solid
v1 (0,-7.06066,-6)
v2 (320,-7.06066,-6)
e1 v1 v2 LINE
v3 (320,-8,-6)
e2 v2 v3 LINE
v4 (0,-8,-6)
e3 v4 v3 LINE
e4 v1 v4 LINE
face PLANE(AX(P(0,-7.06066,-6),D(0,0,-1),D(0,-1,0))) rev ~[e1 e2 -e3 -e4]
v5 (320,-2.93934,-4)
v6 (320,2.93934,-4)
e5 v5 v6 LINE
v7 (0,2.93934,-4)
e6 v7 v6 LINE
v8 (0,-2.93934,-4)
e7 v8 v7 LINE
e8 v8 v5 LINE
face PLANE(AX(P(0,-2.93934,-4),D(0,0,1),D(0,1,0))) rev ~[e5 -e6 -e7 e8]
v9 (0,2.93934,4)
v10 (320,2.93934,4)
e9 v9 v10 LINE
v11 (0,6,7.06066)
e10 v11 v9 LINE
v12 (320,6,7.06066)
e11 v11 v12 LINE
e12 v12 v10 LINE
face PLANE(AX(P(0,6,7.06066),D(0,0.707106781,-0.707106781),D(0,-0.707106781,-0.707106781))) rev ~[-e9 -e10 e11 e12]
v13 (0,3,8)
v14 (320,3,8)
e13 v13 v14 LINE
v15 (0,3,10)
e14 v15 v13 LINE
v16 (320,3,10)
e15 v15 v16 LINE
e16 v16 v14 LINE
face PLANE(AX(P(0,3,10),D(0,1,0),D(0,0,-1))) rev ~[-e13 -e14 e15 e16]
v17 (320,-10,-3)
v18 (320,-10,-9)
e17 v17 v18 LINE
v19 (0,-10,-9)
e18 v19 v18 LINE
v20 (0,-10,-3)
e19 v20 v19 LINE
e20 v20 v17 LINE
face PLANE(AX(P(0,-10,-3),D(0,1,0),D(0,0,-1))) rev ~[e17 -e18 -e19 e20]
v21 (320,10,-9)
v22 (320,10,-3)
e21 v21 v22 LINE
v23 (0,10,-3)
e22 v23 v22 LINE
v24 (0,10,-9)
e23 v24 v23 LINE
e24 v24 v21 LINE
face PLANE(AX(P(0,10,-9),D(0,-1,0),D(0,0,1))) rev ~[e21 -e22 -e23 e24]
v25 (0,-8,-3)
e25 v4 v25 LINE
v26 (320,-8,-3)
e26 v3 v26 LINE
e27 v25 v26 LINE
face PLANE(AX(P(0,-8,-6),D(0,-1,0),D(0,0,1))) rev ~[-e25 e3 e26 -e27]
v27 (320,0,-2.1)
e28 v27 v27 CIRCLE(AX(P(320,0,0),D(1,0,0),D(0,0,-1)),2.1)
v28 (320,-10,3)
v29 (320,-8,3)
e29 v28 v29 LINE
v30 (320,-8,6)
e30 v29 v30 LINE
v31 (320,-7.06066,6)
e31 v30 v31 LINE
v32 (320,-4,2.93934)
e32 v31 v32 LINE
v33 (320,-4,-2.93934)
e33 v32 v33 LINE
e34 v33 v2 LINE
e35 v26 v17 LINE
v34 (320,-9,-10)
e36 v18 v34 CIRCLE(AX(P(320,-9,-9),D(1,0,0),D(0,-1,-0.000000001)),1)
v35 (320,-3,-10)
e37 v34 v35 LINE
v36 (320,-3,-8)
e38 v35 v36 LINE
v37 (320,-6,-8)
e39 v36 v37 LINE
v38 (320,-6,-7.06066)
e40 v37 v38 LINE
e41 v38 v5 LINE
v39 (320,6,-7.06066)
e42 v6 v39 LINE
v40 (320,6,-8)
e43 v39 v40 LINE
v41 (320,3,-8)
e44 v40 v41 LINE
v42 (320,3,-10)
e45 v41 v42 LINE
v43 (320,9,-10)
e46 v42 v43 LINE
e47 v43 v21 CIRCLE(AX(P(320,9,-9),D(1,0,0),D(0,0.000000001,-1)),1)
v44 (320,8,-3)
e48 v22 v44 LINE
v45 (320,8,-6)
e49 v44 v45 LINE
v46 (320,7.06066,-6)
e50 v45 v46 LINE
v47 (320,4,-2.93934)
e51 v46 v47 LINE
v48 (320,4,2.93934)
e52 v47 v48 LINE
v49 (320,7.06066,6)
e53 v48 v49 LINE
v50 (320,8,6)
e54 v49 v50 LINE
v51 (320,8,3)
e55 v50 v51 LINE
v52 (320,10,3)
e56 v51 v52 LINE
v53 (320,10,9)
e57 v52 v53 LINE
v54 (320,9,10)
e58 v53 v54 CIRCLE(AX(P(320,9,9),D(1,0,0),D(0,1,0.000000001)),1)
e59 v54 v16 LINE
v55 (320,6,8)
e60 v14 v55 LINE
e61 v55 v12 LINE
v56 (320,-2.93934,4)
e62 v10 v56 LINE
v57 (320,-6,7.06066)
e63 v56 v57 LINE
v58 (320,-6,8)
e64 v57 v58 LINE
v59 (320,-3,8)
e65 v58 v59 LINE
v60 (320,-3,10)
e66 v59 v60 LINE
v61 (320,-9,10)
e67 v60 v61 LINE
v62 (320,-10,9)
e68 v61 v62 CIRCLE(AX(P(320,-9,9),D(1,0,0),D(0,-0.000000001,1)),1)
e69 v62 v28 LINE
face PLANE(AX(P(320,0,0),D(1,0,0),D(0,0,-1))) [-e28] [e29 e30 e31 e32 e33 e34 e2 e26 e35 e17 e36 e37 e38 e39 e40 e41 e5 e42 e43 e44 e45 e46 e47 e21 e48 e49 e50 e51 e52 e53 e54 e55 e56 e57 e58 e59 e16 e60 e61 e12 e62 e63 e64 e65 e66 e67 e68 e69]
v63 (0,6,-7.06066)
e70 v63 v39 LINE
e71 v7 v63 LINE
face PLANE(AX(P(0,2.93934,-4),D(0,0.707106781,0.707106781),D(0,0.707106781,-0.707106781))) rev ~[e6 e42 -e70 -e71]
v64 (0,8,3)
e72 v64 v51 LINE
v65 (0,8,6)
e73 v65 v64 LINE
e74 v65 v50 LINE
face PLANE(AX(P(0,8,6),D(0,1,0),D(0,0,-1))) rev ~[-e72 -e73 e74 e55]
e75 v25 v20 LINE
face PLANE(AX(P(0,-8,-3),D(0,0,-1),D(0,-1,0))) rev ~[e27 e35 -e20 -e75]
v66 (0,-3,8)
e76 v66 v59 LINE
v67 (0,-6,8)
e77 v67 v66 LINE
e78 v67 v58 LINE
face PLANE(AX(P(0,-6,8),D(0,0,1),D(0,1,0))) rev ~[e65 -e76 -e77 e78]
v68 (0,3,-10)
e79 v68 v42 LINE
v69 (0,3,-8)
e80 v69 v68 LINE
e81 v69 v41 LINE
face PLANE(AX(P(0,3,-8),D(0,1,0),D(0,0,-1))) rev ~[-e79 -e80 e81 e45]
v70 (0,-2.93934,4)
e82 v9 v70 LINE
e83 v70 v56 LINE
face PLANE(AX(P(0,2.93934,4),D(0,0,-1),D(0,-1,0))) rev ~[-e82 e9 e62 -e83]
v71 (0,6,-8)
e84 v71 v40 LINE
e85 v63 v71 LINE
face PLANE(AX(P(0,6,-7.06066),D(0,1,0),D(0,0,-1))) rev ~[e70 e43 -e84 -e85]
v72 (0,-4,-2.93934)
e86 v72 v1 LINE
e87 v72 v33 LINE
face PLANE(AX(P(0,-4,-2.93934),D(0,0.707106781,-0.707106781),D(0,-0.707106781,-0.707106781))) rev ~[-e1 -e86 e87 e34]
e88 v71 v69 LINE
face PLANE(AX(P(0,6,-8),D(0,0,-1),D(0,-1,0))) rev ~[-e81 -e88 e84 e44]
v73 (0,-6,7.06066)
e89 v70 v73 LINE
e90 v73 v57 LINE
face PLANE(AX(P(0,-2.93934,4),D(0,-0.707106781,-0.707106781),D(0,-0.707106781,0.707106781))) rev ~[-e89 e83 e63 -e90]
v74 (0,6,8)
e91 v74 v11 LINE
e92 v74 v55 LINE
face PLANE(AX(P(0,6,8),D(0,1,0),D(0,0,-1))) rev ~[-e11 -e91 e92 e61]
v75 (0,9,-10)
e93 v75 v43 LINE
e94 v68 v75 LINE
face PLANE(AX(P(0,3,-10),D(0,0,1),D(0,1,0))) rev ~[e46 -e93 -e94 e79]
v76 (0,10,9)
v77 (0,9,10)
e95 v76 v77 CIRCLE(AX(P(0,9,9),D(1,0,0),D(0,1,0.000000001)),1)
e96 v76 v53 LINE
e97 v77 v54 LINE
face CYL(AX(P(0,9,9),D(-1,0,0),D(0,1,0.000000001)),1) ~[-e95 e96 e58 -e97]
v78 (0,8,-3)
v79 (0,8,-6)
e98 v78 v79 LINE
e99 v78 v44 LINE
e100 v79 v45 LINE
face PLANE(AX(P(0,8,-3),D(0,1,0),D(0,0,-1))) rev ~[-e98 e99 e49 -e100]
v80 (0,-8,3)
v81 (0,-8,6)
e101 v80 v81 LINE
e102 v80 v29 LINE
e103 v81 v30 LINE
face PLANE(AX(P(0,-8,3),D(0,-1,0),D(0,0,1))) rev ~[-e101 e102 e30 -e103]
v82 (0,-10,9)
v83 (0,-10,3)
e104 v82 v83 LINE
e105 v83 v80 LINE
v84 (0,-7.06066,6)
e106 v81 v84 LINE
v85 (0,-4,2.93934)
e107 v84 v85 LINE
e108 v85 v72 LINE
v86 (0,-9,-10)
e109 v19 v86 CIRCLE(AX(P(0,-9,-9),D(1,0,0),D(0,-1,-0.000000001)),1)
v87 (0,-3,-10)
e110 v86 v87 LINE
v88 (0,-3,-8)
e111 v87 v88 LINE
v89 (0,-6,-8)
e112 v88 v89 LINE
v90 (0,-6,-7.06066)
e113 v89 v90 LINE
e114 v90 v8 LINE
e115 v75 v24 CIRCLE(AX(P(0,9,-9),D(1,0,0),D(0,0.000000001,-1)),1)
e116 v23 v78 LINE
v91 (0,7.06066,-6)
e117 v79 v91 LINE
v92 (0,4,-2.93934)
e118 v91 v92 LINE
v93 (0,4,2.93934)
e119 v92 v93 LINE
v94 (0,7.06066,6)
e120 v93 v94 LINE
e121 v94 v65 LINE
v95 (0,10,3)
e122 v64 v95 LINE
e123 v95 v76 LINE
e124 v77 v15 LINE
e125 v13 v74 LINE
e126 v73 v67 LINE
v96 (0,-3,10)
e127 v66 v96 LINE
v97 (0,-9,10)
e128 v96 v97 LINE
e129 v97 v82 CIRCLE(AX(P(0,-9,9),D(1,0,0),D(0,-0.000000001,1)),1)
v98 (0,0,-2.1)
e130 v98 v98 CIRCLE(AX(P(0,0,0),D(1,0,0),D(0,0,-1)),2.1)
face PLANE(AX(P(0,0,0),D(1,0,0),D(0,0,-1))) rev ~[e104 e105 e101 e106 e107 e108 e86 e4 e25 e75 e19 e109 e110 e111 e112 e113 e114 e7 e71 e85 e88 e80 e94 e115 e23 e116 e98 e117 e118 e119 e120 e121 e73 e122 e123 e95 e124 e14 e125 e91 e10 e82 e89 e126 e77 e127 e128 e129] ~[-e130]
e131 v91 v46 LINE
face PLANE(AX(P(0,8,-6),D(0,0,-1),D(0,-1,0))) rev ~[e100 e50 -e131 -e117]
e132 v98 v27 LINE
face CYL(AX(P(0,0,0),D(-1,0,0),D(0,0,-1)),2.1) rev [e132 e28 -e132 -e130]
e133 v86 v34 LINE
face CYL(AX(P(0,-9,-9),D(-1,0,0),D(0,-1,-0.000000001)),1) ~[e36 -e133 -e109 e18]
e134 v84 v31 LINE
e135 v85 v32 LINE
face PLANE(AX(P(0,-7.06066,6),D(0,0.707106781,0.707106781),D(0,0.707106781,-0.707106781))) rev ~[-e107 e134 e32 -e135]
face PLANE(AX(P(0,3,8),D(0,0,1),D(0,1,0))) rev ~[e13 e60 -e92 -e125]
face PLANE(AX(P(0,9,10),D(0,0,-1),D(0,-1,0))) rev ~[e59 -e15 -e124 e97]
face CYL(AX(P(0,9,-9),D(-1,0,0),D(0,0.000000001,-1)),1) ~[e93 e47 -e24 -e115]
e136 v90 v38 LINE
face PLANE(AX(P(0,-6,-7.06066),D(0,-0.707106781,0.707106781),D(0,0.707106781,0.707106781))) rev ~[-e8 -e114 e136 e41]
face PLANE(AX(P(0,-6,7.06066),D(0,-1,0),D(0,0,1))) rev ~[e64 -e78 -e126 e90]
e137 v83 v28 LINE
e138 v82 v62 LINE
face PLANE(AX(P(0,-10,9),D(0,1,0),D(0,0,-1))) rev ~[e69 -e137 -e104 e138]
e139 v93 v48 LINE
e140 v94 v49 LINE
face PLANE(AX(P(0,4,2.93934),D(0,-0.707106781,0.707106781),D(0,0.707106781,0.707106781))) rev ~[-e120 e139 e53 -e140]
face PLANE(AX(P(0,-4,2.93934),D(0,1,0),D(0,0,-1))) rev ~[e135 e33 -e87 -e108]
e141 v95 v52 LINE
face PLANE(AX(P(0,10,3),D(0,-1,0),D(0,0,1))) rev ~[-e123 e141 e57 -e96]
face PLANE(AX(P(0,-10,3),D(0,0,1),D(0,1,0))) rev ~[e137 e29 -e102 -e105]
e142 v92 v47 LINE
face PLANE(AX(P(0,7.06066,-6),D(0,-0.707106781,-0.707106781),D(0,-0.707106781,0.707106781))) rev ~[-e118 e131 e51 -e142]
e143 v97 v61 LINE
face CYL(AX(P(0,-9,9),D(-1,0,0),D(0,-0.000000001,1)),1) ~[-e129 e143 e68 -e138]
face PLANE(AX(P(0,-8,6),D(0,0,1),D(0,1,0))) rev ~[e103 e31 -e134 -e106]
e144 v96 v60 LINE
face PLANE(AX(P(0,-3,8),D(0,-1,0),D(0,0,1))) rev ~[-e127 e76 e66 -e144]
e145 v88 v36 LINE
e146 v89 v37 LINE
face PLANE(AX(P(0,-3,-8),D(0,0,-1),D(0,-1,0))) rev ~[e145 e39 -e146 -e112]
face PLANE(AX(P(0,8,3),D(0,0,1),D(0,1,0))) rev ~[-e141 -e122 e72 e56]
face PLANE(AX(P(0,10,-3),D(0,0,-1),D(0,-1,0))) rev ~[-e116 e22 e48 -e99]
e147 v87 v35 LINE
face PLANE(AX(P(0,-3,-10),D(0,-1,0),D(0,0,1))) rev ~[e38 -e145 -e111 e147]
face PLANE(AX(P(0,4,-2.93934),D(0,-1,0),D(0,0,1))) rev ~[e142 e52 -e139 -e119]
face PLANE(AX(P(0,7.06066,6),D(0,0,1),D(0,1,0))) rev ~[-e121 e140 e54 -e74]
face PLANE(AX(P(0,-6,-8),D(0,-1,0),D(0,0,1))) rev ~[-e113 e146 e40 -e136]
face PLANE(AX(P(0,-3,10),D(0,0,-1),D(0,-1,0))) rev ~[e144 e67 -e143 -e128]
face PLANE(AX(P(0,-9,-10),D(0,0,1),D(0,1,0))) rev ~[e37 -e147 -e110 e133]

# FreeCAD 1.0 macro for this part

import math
import FreeCAD as App
import Part
import Sketcher
from FreeCAD import Vector

doc = App.newDocument("Part")
params = doc.addObject("Spreadsheet::Sheet", "Params")
for row, (alias, value) in enumerate([
    ("sketch1_radius", "1 mm"),
    ("sketch1_diameter", "4.2 mm"),
    ("sketch1_width", "6 mm"),
    ("sketch1_width2", "3 mm"),
    ("sketch1_width3", "2 mm"),
    ("pad1_length", "320 mm"),
], start=1):
    params.set(f"A{row}", alias)
    params.set(f"B{row}", "=" + value)
    params.setAlias(f"B{row}", alias)

body = doc.addObject("PartDesign::Body", "Body")

sketch1 = body.newObject("Sketcher::SketchObject", "Sketch")
sketch1.AttachmentSupport = (doc.getObject("YZ_Plane"), [""])
sketch1.MapMode = "FlatFace"
sketch1.addGeometry([
    Part.LineSegment(Vector(9, 10, 0), Vector(3, 10, 0)),
    Part.LineSegment(Vector(3, 10, 0), Vector(3, 8, 0)),
    Part.LineSegment(Vector(3, 8, 0), Vector(6, 8, 0)),
    Part.LineSegment(Vector(6, 8, 0), Vector(6, 7.1, 0)),
    Part.LineSegment(Vector(6, 7.1, 0), Vector(2.9, 4, 0)),
    Part.LineSegment(Vector(2.9, 4, 0), Vector(-2.9, 4, 0)),
    Part.LineSegment(Vector(-2.9, 4, 0), Vector(-6, 7.1, 0)),
    Part.LineSegment(Vector(-6, 7.1, 0), Vector(-6, 8, 0)),
    Part.LineSegment(Vector(-6, 8, 0), Vector(-3, 8, 0)),
    Part.LineSegment(Vector(-3, 8, 0), Vector(-3, 10, 0)),
    Part.LineSegment(Vector(-3, 10, 0), Vector(-9, 10, 0)),
    Part.ArcOfCircle(Part.Circle(Vector(-9, 9, 0), Vector(0, 0, 1), 1), math.radians(90), math.radians(180)),
    Part.LineSegment(Vector(-10, 9, 0), Vector(-10, 3, 0)),
    Part.LineSegment(Vector(-10, 3, 0), Vector(-8, 3, 0)),
    Part.LineSegment(Vector(-8, 3, 0), Vector(-8, 6, 0)),
    Part.LineSegment(Vector(-8, 6, 0), Vector(-7.1, 6, 0)),
    Part.LineSegment(Vector(-7.1, 6, 0), Vector(-4, 2.9, 0)),
    Part.LineSegment(Vector(-4, 2.9, 0), Vector(-4, -2.9, 0)),
    Part.LineSegment(Vector(-4, -2.9, 0), Vector(-7.1, -6, 0)),
    Part.LineSegment(Vector(-7.1, -6, 0), Vector(-8, -6, 0)),
    Part.LineSegment(Vector(-8, -6, 0), Vector(-8, -3, 0)),
    Part.LineSegment(Vector(-8, -3, 0), Vector(-10, -3, 0)),
    Part.LineSegment(Vector(-10, -3, 0), Vector(-10, -9, 0)),
    Part.ArcOfCircle(Part.Circle(Vector(-9, -9, 0), Vector(0, 0, 1), 1), math.radians(-180), math.radians(-90)),
    Part.LineSegment(Vector(-9, -10, 0), Vector(-3, -10, 0)),
    Part.LineSegment(Vector(-3, -10, 0), Vector(-3, -8, 0)),
    Part.LineSegment(Vector(-3, -8, 0), Vector(-6, -8, 0)),
    Part.LineSegment(Vector(-6, -8, 0), Vector(-6, -7.1, 0)),
    Part.LineSegment(Vector(-6, -7.1, 0), Vector(-2.9, -4, 0)),
    Part.LineSegment(Vector(-2.9, -4, 0), Vector(2.9, -4, 0)),
    Part.LineSegment(Vector(2.9, -4, 0), Vector(6, -7.1, 0)),
    Part.LineSegment(Vector(6, -7.1, 0), Vector(6, -8, 0)),
    Part.LineSegment(Vector(6, -8, 0), Vector(3, -8, 0)),
    Part.LineSegment(Vector(3, -8, 0), Vector(3, -10, 0)),
    Part.LineSegment(Vector(3, -10, 0), Vector(9, -10, 0)),
    Part.ArcOfCircle(Part.Circle(Vector(9, -9, 0), Vector(0, 0, 1), 1), math.radians(-90), math.radians(0)),
    Part.LineSegment(Vector(10, -9, 0), Vector(10, -3, 0)),
    Part.LineSegment(Vector(10, -3, 0), Vector(8, -3, 0)),
    Part.LineSegment(Vector(8, -3, 0), Vector(8, -6, 0)),
    Part.LineSegment(Vector(8, -6, 0), Vector(7.1, -6, 0)),
    Part.LineSegment(Vector(7.1, -6, 0), Vector(4, -2.9, 0)),
    Part.LineSegment(Vector(4, -2.9, 0), Vector(4, 2.9, 0)),
    Part.LineSegment(Vector(4, 2.9, 0), Vector(7.1, 6, 0)),
    Part.LineSegment(Vector(7.1, 6, 0), Vector(8, 6, 0)),
    Part.LineSegment(Vector(8, 6, 0), Vector(8, 3, 0)),
    Part.LineSegment(Vector(8, 3, 0), Vector(10, 3, 0)),
    Part.LineSegment(Vector(10, 3, 0), Vector(10, 9, 0)),
    Part.ArcOfCircle(Part.Circle(Vector(9, 9, 0), Vector(0, 0, 1), 1), math.radians(0), math.radians(90)),
    Part.Circle(Vector(0, 0, 0), Vector(0, 0, 1), 2.1),
], False)
sketch1.addConstraint([
    Sketcher.Constraint("Coincident", 0, 2, 1, 1),
    Sketcher.Constraint("Coincident", 1, 2, 2, 1),
    Sketcher.Constraint("Coincident", 2, 2, 3, 1),
    Sketcher.Constraint("Coincident", 3, 2, 4, 1),
    Sketcher.Constraint("Coincident", 4, 2, 5, 1),
    Sketcher.Constraint("Coincident", 5, 2, 6, 1),
    Sketcher.Constraint("Coincident", 6, 2, 7, 1),
    Sketcher.Constraint("Coincident", 7, 2, 8, 1),
    Sketcher.Constraint("Coincident", 8, 2, 9, 1),
    Sketcher.Constraint("Coincident", 9, 2, 10, 1),
    Sketcher.Constraint("Tangent", 10, 2, 11, 1),
    Sketcher.Constraint("Tangent", 11, 2, 12, 1),
    Sketcher.Constraint("Coincident", 12, 2, 13, 1),
    Sketcher.Constraint("Coincident", 13, 2, 14, 1),
    Sketcher.Constraint("Coincident", 14, 2, 15, 1),
    Sketcher.Constraint("Coincident", 15, 2, 16, 1),
    Sketcher.Constraint("Coincident", 16, 2, 17, 1),
    Sketcher.Constraint("Coincident", 17, 2, 18, 1),
    Sketcher.Constraint("Coincident", 18, 2, 19, 1),
    Sketcher.Constraint("Coincident", 19, 2, 20, 1),
    Sketcher.Constraint("Coincident", 20, 2, 21, 1),
    Sketcher.Constraint("Coincident", 21, 2, 22, 1),
    Sketcher.Constraint("Tangent", 22, 2, 23, 1),
    Sketcher.Constraint("Tangent", 23, 2, 24, 1),
    Sketcher.Constraint("Coincident", 24, 2, 25, 1),
    Sketcher.Constraint("Coincident", 25, 2, 26, 1),
    Sketcher.Constraint("Coincident", 26, 2, 27, 1),
    Sketcher.Constraint("Coincident", 27, 2, 28, 1),
    Sketcher.Constraint("Coincident", 28, 2, 29, 1),
    Sketcher.Constraint("Coincident", 29, 2, 30, 1),
    Sketcher.Constraint("Coincident", 30, 2, 31, 1),
    Sketcher.Constraint("Coincident", 31, 2, 32, 1),
    Sketcher.Constraint("Coincident", 32, 2, 33, 1),
    Sketcher.Constraint("Coincident", 33, 2, 34, 1),
    Sketcher.Constraint("Tangent", 34, 2, 35, 1),
    Sketcher.Constraint("Tangent", 35, 2, 36, 1),
    Sketcher.Constraint("Coincident", 36, 2, 37, 1),
    Sketcher.Constraint("Coincident", 37, 2, 38, 1),
    Sketcher.Constraint("Coincident", 38, 2, 39, 1),
    Sketcher.Constraint("Coincident", 39, 2, 40, 1),
    Sketcher.Constraint("Coincident", 40, 2, 41, 1),
    Sketcher.Constraint("Coincident", 41, 2, 42, 1),
    Sketcher.Constraint("Coincident", 42, 2, 43, 1),
    Sketcher.Constraint("Coincident", 43, 2, 44, 1),
    Sketcher.Constraint("Coincident", 44, 2, 45, 1),
    Sketcher.Constraint("Coincident", 45, 2, 46, 1),
    Sketcher.Constraint("Tangent", 46, 2, 47, 1),
    Sketcher.Constraint("Tangent", 47, 2, 0, 1),
    Sketcher.Constraint("Horizontal", 0),
    Sketcher.Constraint("Vertical", 1),
    Sketcher.Constraint("Horizontal", 2),
    Sketcher.Constraint("Vertical", 3),
    Sketcher.Constraint("Horizontal", 5),
    Sketcher.Constraint("Vertical", 7),
    Sketcher.Constraint("Horizontal", 8),
    Sketcher.Constraint("Vertical", 9),
    Sketcher.Constraint("Horizontal", 10),
    Sketcher.Constraint("Vertical", 12),
    Sketcher.Constraint("Horizontal", 13),
    Sketcher.Constraint("Vertical", 14),
    Sketcher.Constraint("Horizontal", 15),
    Sketcher.Constraint("Vertical", 17),
    Sketcher.Constraint("Horizontal", 19),
    Sketcher.Constraint("Vertical", 20),
    Sketcher.Constraint("Horizontal", 21),
    Sketcher.Constraint("Vertical", 22),
    Sketcher.Constraint("Horizontal", 24),
    Sketcher.Constraint("Vertical", 25),
    Sketcher.Constraint("Horizontal", 26),
    Sketcher.Constraint("Vertical", 27),
    Sketcher.Constraint("Horizontal", 29),
    Sketcher.Constraint("Vertical", 31),
    Sketcher.Constraint("Horizontal", 32),
    Sketcher.Constraint("Vertical", 33),
    Sketcher.Constraint("Horizontal", 34),
    Sketcher.Constraint("Vertical", 36),
    Sketcher.Constraint("Horizontal", 37),
    Sketcher.Constraint("Vertical", 38),
    Sketcher.Constraint("Horizontal", 39),
    Sketcher.Constraint("Vertical", 41),
    Sketcher.Constraint("Horizontal", 43),
    Sketcher.Constraint("Vertical", 44),
    Sketcher.Constraint("Horizontal", 45),
    Sketcher.Constraint("Vertical", 46),
    Sketcher.Constraint("Coincident", 48, 3, -1, 1),
    Sketcher.Constraint("Equal", 11, 23),
    Sketcher.Constraint("Equal", 23, 35),
    Sketcher.Constraint("Equal", 35, 47),
    Sketcher.Constraint("Symmetric", 11, 3, 35, 3, -1, 1),
    Sketcher.Constraint("Symmetric", 23, 3, 47, 3, -1, 1),
    Sketcher.Constraint("Symmetric", 1, 2, 25, 2, -1, 1),
    Sketcher.Constraint("Symmetric", 3, 2, 27, 2, -1, 1),
    Sketcher.Constraint("Symmetric", 4, 2, 28, 2, -1, 1),
    Sketcher.Constraint("Symmetric", 6, 2, 30, 2, -1, 1),
    Sketcher.Constraint("Symmetric", 8, 2, 32, 2, -1, 1),
    Sketcher.Constraint("Symmetric", 13, 2, 37, 2, -1, 1),
    Sketcher.Constraint("Symmetric", 15, 2, 39, 2, -1, 1),
    Sketcher.Constraint("Symmetric", 16, 2, 40, 2, -1, 1),
    Sketcher.Constraint("Symmetric", 18, 2, 42, 2, -1, 1),
    Sketcher.Constraint("Symmetric", 20, 2, 44, 2, -1, 1),
    Sketcher.Constraint("Symmetric", 23, 3, 35, 3, -2),
    Sketcher.Constraint("Symmetric", 3, 2, 6, 2, -2),
    Sketcher.Constraint("Symmetric", 1, 2, 8, 2, -2),
    Sketcher.Constraint("Symmetric", 20, 2, 37, 2, -2),
    Sketcher.Constraint("Symmetric", 18, 2, 39, 2, -2),
    Sketcher.Constraint("Perpendicular", 4, 6),
    Sketcher.Constraint("Parallel", 6, 16),
    Sketcher.Constraint("Perpendicular", 16, 18),
    Sketcher.Constraint("Perpendicular", 28, 30),
    Sketcher.Constraint("Perpendicular", 40, 42),
    Sketcher.Constraint("Horizontal", 17, 2, 40, 2),
    Sketcher.Constraint("Equal", 45, 1),
    Sketcher.Constraint("Equal", 43, 3),
    Sketcher.Constraint("Equal", 34, 12),
    Sketcher.Constraint("Equal", 32, 14),
    Sketcher.Constraint("Equal", 29, 17),
    Sketcher.Constraint("Equal", 6, 16),
    Sketcher.Constraint("Radius", 11, 1.0),
    Sketcher.Constraint("Diameter", 48, 4.2),
    Sketcher.Constraint("DistanceX", 0, 2, 0, 1, 6.0),
    Sketcher.Constraint("DistanceX", 2, 1, 2, 2, 3.0),
    Sketcher.Constraint("DistanceX", 13, 1, 13, 2, 2.0),
    Sketcher.Constraint("DistanceX", 11, 3, -1, 1, 9.0),
    Sketcher.Constraint("DistanceY", -1, 1, 4, 2, 4.0),
    Sketcher.Constraint("DistanceX", 5, 2, 5, 1, 5.87868),
])
sketch1.setExpression("Constraints[117]", "Params.sketch1_radius")
sketch1.setExpression("Constraints[118]", "Params.sketch1_diameter")
sketch1.setExpression("Constraints[119]", "Params.sketch1_width")
sketch1.setExpression("Constraints[120]", "Params.sketch1_width2")
sketch1.setExpression("Constraints[121]", "Params.sketch1_width3")
pad1 = body.newObject("PartDesign::Pad", "Pad")
pad1.Profile = sketch1
pad1.setExpression("Length", "Params.pad1_length")

doc.recompute()
